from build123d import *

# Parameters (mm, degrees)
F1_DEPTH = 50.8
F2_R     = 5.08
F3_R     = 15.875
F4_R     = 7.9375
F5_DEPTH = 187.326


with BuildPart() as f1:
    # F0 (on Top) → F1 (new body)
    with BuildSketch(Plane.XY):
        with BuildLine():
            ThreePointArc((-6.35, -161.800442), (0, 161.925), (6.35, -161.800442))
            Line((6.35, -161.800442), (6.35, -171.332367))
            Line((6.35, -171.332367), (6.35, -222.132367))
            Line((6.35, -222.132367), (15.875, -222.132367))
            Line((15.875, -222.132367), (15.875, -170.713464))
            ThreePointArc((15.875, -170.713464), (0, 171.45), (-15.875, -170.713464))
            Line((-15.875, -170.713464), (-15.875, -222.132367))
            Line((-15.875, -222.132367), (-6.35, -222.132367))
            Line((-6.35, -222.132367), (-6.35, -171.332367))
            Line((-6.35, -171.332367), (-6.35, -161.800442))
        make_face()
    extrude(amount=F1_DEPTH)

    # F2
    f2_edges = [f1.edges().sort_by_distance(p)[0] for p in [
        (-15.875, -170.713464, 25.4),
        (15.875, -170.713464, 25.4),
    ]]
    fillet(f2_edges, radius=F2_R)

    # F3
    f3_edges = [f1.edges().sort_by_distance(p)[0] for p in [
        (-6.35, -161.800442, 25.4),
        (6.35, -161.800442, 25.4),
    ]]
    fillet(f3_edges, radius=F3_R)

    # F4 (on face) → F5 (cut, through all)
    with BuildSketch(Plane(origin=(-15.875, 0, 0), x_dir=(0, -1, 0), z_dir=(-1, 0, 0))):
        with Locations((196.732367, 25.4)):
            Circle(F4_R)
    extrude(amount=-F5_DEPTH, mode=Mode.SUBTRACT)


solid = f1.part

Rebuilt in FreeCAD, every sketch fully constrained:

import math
import FreeCAD as App
import Part
import Sketcher
from FreeCAD import Vector
Q = App.Units.Quantity


def edges_at(feature, points):
    """Names of the edges that pass closest to the given points."""
    edges = feature.Shape.Edges
    near = lambda p: min(range(len(edges)), key=lambda i: edges[i].distToShape(Part.Vertex(*p))[0])
    return sorted({f"Edge{near(p) + 1}" for p in points})

doc = App.newDocument("Part")
body = doc.addObject("PartDesign::Body", "Body")

sketch1 = body.newObject("Sketcher::SketchObject", "Sketch")
sketch1.AttachmentSupport = (doc.getObject("XY_Plane"), [""])
sketch1.MapMode = "FlatFace"
sketch1.addGeometry(Part.ArcOfCircle(Part.Circle(Vector(0, 0, 0), Vector(0, 0, 1), 162), math.radians(-88), math.radians(268)), False)
sketch1.addGeometry(Part.LineSegment(Vector(6, -162, 0), Vector(6, -222, 0)), False)
sketch1.addGeometry(Part.LineSegment(Vector(6, -222, 0), Vector(16, -222, 0)), False)
sketch1.addGeometry(Part.LineSegment(Vector(16, -222, 0), Vector(16, -171, 0)), False)
sketch1.addGeometry(Part.ArcOfCircle(Part.Circle(Vector(0, 0, 0), Vector(0, 0, 1), 171), math.radians(-85), math.radians(265)), False)
sketch1.addGeometry(Part.LineSegment(Vector(-16, -171, 0), Vector(-16, -222, 0)), False)
sketch1.addGeometry(Part.LineSegment(Vector(-16, -222, 0), Vector(-6, -222, 0)), False)
sketch1.addGeometry(Part.LineSegment(Vector(-6, -222, 0), Vector(-6, -162, 0)), False)
sketch1.addConstraint(Sketcher.Constraint("Coincident", 0, 1, 1, 1))
sketch1.addConstraint(Sketcher.Constraint("Coincident", 1, 2, 2, 1))
sketch1.addConstraint(Sketcher.Constraint("Coincident", 2, 2, 3, 1))
sketch1.addConstraint(Sketcher.Constraint("Coincident", 3, 2, 4, 1))
sketch1.addConstraint(Sketcher.Constraint("Coincident", 4, 2, 5, 1))
sketch1.addConstraint(Sketcher.Constraint("Coincident", 5, 2, 6, 1))
sketch1.addConstraint(Sketcher.Constraint("Coincident", 6, 2, 7, 1))
sketch1.addConstraint(Sketcher.Constraint("Coincident", 7, 2, 0, 2))
sketch1.addConstraint(Sketcher.Constraint("Vertical", 1))
sketch1.addConstraint(Sketcher.Constraint("Horizontal", 2))
sketch1.addConstraint(Sketcher.Constraint("Vertical", 3))
sketch1.addConstraint(Sketcher.Constraint("Vertical", 5))
sketch1.addConstraint(Sketcher.Constraint("Horizontal", 6))
sketch1.addConstraint(Sketcher.Constraint("Vertical", 7))
sketch1.addConstraint(Sketcher.Constraint("Coincident", 0, 3, -1, 1))
sketch1.addConstraint(Sketcher.Constraint("Coincident", 4, 3, -1, 1))
sketch1.addConstraint(Sketcher.Constraint("Symmetric", 2, 2, 5, 2, -2))
sketch1.addConstraint(Sketcher.Constraint("Horizontal", 0, 1, 7, 2))
sketch1.addConstraint(Sketcher.Constraint("Radius", 4, Q("6.75 in")))
sketch1.addConstraint(Sketcher.Constraint("Radius", 0, Q("6.375 in")))
sketch1.addConstraint(Sketcher.Constraint("DistanceX", 6, 2, 1, 2, Q("0.5 in")))
sketch1.addConstraint(Sketcher.Constraint("DistanceX", 2, 1, 2, 2, Q("0.375 in")))
sketch1.addConstraint(Sketcher.Constraint("DistanceY", 1, 2, 1, 1, 60.331925))
pad1 = body.newObject("PartDesign::Pad", "Pad")
pad1.Profile = sketch1
pad1.Length = Q("2 in")
doc.recompute()

fillet = body.newObject("PartDesign::Fillet", "Fillet")
fillet.Base = (pad1, edges_at(pad1, [(-15.875, -170.713, 25.4), (15.875, -170.713, 25.4)]))
fillet.Radius = Q("0.2 in")
doc.recompute()

fillet2 = body.newObject("PartDesign::Fillet", "Fillet001")
fillet2.Base = (fillet, edges_at(fillet, [(-6.35, -161.8, 25.4), (6.35, -161.8, 25.4)]))
fillet2.Radius = Q("0.625 in")

sketch2 = body.newObject("Sketcher::SketchObject", "Sketch001")
sketch2.AttachmentSupport = (doc.getObject("YZ_Plane"), [""])
sketch2.MapMode = "FlatFace"
sketch2.AttachmentOffset = App.Placement(Vector(0, 0, -0.625 * 25.4), App.Rotation())
sketch2.addGeometry(Part.Circle(Vector(-197, 25, 0), Vector(0, 0, 1), 8), False)
sketch2.addConstraint(Sketcher.Constraint("Diameter", 0, Q("0.625 in")))
sketch2.addConstraint(Sketcher.Constraint("DistanceY", -1, 1, 0, 3, Q("1 in")))
sketch2.addConstraint(Sketcher.Constraint("DistanceX", 0, 3, -1, 1, 196.732367))
pocket1 = body.newObject("PartDesign::Pocket", "Pocket")
pocket1.Profile = sketch2
pocket1.Type = "ThroughAll"
pocket1.Reversed = True

doc.recompute()
